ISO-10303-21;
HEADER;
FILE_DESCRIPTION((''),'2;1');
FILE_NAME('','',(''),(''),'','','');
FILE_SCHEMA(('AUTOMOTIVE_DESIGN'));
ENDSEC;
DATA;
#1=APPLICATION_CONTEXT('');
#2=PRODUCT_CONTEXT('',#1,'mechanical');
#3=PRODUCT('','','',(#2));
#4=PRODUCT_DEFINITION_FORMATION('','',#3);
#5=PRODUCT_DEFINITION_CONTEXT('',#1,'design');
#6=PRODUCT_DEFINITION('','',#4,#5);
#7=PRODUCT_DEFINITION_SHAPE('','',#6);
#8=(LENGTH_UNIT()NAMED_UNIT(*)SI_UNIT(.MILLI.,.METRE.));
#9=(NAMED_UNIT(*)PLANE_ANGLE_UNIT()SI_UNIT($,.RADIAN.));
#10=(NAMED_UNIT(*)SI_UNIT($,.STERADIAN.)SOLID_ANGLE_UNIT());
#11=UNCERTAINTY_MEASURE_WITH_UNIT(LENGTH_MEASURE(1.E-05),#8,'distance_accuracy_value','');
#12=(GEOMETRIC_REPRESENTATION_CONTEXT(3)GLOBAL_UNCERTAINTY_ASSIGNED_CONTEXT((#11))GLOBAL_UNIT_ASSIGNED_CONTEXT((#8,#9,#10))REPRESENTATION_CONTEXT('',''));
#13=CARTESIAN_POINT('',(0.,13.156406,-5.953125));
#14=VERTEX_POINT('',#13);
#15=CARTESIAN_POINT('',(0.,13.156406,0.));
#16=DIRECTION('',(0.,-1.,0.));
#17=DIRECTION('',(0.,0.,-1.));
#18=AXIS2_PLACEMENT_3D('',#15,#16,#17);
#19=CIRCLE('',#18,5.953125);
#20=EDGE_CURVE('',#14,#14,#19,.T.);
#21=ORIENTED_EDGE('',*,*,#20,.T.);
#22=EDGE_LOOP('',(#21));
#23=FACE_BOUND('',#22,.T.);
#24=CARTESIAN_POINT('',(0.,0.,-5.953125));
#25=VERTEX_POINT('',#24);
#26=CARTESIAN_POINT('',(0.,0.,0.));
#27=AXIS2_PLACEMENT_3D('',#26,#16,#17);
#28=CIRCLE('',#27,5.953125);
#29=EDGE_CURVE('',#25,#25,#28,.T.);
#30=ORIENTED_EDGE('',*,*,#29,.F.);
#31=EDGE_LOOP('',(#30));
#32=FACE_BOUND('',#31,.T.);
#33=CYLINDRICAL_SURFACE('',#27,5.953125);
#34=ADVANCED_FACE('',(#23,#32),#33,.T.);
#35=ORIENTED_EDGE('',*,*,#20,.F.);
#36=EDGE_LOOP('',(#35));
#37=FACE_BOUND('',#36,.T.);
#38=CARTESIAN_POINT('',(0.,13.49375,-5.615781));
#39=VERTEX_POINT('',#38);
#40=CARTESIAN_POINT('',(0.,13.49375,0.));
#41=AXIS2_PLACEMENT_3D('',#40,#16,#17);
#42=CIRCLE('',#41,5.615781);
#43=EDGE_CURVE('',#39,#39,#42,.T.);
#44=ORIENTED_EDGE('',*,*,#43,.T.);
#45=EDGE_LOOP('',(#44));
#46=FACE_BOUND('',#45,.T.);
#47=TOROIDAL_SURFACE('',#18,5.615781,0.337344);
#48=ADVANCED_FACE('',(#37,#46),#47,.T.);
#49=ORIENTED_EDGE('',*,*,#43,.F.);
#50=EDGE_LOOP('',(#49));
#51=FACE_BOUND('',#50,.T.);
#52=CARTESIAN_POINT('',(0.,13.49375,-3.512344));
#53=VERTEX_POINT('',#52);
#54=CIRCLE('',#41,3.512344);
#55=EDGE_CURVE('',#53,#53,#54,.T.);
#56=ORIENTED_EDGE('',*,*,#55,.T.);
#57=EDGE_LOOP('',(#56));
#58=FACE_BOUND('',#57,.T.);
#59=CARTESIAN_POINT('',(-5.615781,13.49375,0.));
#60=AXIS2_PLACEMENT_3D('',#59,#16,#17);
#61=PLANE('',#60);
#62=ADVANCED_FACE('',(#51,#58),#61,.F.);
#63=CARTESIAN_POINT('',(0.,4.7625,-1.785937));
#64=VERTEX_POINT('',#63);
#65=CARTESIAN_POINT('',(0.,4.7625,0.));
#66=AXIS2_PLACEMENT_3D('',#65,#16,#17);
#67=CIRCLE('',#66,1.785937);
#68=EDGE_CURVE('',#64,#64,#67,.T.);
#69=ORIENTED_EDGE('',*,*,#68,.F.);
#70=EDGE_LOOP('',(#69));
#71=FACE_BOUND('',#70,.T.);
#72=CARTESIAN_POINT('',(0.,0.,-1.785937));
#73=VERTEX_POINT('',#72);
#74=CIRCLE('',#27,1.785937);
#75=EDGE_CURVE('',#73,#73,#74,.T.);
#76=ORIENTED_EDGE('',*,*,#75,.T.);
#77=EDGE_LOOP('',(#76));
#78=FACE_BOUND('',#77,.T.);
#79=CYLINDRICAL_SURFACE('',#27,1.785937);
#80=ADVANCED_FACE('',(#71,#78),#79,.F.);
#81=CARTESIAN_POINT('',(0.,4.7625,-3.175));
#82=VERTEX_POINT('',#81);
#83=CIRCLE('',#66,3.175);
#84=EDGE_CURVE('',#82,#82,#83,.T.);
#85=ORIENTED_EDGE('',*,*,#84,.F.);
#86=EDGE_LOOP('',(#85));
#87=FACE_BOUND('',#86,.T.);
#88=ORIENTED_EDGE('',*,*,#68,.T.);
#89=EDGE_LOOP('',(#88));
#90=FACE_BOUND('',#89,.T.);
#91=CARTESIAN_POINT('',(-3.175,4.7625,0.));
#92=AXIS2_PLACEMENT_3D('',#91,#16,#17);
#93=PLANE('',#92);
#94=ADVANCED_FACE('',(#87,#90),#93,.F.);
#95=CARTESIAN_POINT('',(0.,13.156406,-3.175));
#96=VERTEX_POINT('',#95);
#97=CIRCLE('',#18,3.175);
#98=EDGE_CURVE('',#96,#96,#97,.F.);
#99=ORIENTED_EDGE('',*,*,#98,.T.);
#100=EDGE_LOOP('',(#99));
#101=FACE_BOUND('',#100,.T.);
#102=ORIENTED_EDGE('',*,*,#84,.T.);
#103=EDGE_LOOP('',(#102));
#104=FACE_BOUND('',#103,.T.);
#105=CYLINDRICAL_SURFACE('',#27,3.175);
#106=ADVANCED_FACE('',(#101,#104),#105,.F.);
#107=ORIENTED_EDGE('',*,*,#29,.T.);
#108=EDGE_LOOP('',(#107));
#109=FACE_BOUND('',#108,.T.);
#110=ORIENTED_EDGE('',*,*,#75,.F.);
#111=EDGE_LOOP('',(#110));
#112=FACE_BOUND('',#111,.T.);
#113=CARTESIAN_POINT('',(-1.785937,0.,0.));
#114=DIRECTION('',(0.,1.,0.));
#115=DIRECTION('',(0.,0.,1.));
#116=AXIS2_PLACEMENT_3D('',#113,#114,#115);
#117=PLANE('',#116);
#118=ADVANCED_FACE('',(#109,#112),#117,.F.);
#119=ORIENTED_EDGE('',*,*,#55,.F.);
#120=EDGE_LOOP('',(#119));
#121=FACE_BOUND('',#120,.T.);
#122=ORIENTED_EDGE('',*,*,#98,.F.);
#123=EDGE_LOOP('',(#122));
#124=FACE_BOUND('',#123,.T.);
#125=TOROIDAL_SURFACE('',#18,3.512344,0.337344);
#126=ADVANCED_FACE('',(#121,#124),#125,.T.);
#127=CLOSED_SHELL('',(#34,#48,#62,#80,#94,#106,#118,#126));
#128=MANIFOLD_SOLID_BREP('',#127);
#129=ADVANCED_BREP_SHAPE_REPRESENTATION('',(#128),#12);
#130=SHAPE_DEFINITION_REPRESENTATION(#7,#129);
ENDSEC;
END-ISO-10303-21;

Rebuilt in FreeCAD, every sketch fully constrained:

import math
import FreeCAD as App
import Part
import Sketcher
Q = App.Units.Quantity


def edges_at(feature, points):
    """Names of the edges that pass closest to the given points."""
    edges = feature.Shape.Edges
    near = lambda p: min(range(len(edges)), key=lambda i: edges[i].distToShape(Part.Vertex(*p))[0])
    return sorted({f"Edge{near(p) + 1}" for p in points})

doc = App.newDocument("Part")
body = doc.addObject("PartDesign::Body", "Body")

# Sketch on XY plane
sketch1 = doc.addObject("Sketcher::SketchObject", "Sketch")
body.addObject(sketch1)
sketch1.AttachmentSupport = (doc.XY_Plane, [""])
sketch1.MapMode = "FlatFace"
sketch1.addGeometry([
    Part.LineSegment(App.Vector(-5.95, 13.16, 0), App.Vector(-5.95, 0, 0)),  # 0
    Part.LineSegment(App.Vector(-5.95, 0, 0), App.Vector(-1.79, 0, 0)),  # 1
    Part.LineSegment(App.Vector(-1.79, 0, 0), App.Vector(-1.79, 4.76, 0)),  # 2
    Part.LineSegment(App.Vector(-1.79, 4.76, 0), App.Vector(-3.17, 4.76, 0)),  # 3
    Part.LineSegment(App.Vector(-3.17, 4.76, 0), App.Vector(-3.17, 13.49, 0)),  # 4
    Part.LineSegment(App.Vector(-3.17, 13.49, 0), App.Vector(-5.62, 13.49, 0)),  # 5
    Part.ArcOfCircle(Part.Circle(App.Vector(-5.62, 13.16, 0), App.Vector(0, 0, 1), 0.34), math.radians(90), math.radians(180)),  # 6
], False)
sketch1.addConstraint([
    Sketcher.Constraint("Coincident", 0, 2, 1, 1),
    Sketcher.Constraint("Coincident", 1, 2, 2, 1),
    Sketcher.Constraint("Coincident", 2, 2, 3, 1),
    Sketcher.Constraint("Coincident", 3, 2, 4, 1),
    Sketcher.Constraint("Coincident", 4, 2, 5, 1),
    Sketcher.Constraint("Tangent", 5, 2, 6, 1),
    Sketcher.Constraint("Tangent", 6, 2, 0, 1),
    Sketcher.Constraint("Vertical", 0),
    Sketcher.Constraint("Horizontal", 1),
    Sketcher.Constraint("Vertical", 2),
    Sketcher.Constraint("Horizontal", 3),
    Sketcher.Constraint("Vertical", 4),
    Sketcher.Constraint("Horizontal", 5),
    Sketcher.Constraint("PointOnObject", 0, 2, -1),
    Sketcher.Constraint("DistanceY", 2, 1, 2, 2, Q("0.1875 in")),
    Sketcher.Constraint("DistanceY", 4, 1, 4, 2, Q("0.34375 in")),
    Sketcher.Constraint("DistanceX", 0, 2, -1, 1, Q("0.234375 in")),
    Sketcher.Constraint("DistanceX", 3, 2, -1, 1, Q("0.125 in")),
    Sketcher.Constraint("Radius", 6, Q("0.337344 mm")),
    Sketcher.Constraint("DistanceX", 1, 1, 1, 2, Q("4.167187 mm")),
])
revolution = doc.addObject("PartDesign::Revolution", "Revolution")
body.addObject(revolution)
revolution.Profile = sketch1
revolution.ReferenceAxis = (sketch1, ["V_Axis"])
revolution.Angle = 360
doc.recompute()

fillet = doc.addObject("PartDesign::Fillet", "Fillet")
body.addObject(fillet)
fillet.Base = (revolution, edges_at(revolution, [(0, 13.494, 3.175)]))
fillet.Radius = 0.337344

doc.recompute()
